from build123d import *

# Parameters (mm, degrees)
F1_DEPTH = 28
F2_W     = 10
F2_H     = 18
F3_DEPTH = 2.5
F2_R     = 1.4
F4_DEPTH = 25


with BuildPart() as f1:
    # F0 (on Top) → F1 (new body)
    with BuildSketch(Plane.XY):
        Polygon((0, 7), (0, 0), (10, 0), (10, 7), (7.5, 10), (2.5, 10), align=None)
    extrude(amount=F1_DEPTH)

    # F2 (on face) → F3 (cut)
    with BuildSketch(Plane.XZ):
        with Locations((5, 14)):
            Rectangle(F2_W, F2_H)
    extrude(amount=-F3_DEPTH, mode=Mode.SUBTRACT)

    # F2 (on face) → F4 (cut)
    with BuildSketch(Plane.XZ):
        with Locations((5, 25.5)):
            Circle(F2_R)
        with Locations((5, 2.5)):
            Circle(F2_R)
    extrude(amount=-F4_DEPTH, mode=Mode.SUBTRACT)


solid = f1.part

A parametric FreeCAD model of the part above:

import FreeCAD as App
import Part
import Sketcher
from FreeCAD import Vector

doc = App.newDocument("Part")
params = doc.addObject("Spreadsheet::Sheet", "Params")
for row, (alias, value) in enumerate([
    ("sketch1_width", "10 mm"),
    ("sketch1_width2", "5 mm"),
    ("sketch1_height", "7 mm"),
    ("pad1_length", "28 mm"),
    ("sketch2_width", "10 mm"),
    ("sketch2_height", "18 mm"),
    ("pocket1_length", "2.5 mm"),
    ("sketch3_diameter", "2.8 mm"),
    ("pocket2_length", "25 mm"),
], start=1):
    params.set(f"A{row}", alias)
    params.set(f"B{row}", "=" + value)
    params.setAlias(f"B{row}", alias)

body = doc.addObject("PartDesign::Body", "Body")

sketch1 = doc.addObject("Sketcher::SketchObject", "Sketch")
body.addObject(sketch1)
sketch1.AttachmentSupport = (doc.XY_Plane, [""])
sketch1.MapMode = "FlatFace"
sketch1.addGeometry([
    Part.LineSegment(Vector(0, 7, 0), Vector(0, 0, 0)),
    Part.LineSegment(Vector(0, 0, 0), Vector(10, 0, 0)),
    Part.LineSegment(Vector(10, 0, 0), Vector(10, 7, 0)),
    Part.LineSegment(Vector(10, 7, 0), Vector(7.5, 10, 0)),
    Part.LineSegment(Vector(7.5, 10, 0), Vector(2.5, 10, 0)),
    Part.LineSegment(Vector(2.5, 10, 0), Vector(0, 7, 0)),
], False)
sketch1.addConstraint([
    Sketcher.Constraint("Coincident", 0, 2, 1, 1),
    Sketcher.Constraint("Coincident", 1, 2, 2, 1),
    Sketcher.Constraint("Coincident", 2, 2, 3, 1),
    Sketcher.Constraint("Coincident", 3, 2, 4, 1),
    Sketcher.Constraint("Coincident", 4, 2, 5, 1),
    Sketcher.Constraint("Coincident", 5, 2, 0, 1),
    Sketcher.Constraint("Vertical", 0),
    Sketcher.Constraint("Horizontal", 1),
    Sketcher.Constraint("Vertical", 2),
    Sketcher.Constraint("Horizontal", 4),
    Sketcher.Constraint("Coincident", 0, 2, -1, 1),
    Sketcher.Constraint("Horizontal", 2, 2, 5, 2),
    Sketcher.Constraint("Equal", 3, 5),
    Sketcher.Constraint("DistanceX", 1, 1, 1, 2, 10.0),
    Sketcher.Constraint("DistanceX", 4, 2, 4, 1, 5.0),
    Sketcher.Constraint("DistanceY", 0, 2, 0, 1, 7.0),
    Sketcher.Constraint("DistanceY", -1, 1, 3, 2, 10.0),
])
sketch1.setExpression("Constraints[13]", "Params.sketch1_width")
sketch1.setExpression("Constraints[14]", "Params.sketch1_width2")
sketch1.setExpression("Constraints[15]", "Params.sketch1_height")
pad1 = doc.addObject("PartDesign::Pad", "Pad")
body.addObject(pad1)
pad1.Profile = sketch1
pad1.setExpression("Length", "Params.pad1_length")

sketch2 = doc.addObject("Sketcher::SketchObject", "Sketch001")
body.addObject(sketch2)
sketch2.AttachmentSupport = (doc.XZ_Plane, [""])
sketch2.MapMode = "FlatFace"
sketch2.addGeometry([
    Part.LineSegment(Vector(0, 23, 0), Vector(0, 5, 0)),
    Part.LineSegment(Vector(0, 5, 0), Vector(10, 5, 0)),
    Part.LineSegment(Vector(10, 5, 0), Vector(10, 23, 0)),
    Part.LineSegment(Vector(10, 23, 0), Vector(0, 23, 0)),
], False)
sketch2.addConstraint([
    Sketcher.Constraint("Coincident", 0, 2, 1, 1),
    Sketcher.Constraint("Coincident", 1, 2, 2, 1),
    Sketcher.Constraint("Coincident", 2, 2, 3, 1),
    Sketcher.Constraint("Coincident", 3, 2, 0, 1),
    Sketcher.Constraint("Vertical", 0),
    Sketcher.Constraint("Horizontal", 1),
    Sketcher.Constraint("Vertical", 2),
    Sketcher.Constraint("Horizontal", 3),
    Sketcher.Constraint("PointOnObject", 0, 2, -2),
    Sketcher.Constraint("DistanceX", 1, 1, 1, 2, 10.0),
    Sketcher.Constraint("DistanceY", 0, 2, 0, 1, 18.0),
    Sketcher.Constraint("DistanceY", -1, 1, 0, 2, 5.0),
])
sketch2.setExpression("Constraints[9]", "Params.sketch2_width")
sketch2.setExpression("Constraints[10]", "Params.sketch2_height")
pocket1 = doc.addObject("PartDesign::Pocket", "Pocket")
body.addObject(pocket1)
pocket1.Profile = sketch2
pocket1.setExpression("Length", "Params.pocket1_length")

sketch3 = doc.addObject("Sketcher::SketchObject", "Sketch002")
body.addObject(sketch3)
sketch3.AttachmentSupport = (doc.XZ_Plane, [""])
sketch3.MapMode = "FlatFace"
sketch3.addGeometry([
    Part.Circle(Vector(5, 25.5, 0), Vector(0, 0, 1), 1.4),
    Part.Circle(Vector(5, 2.5, 0), Vector(0, 0, 1), 1.4),
], False)
sketch3.addConstraint([
    Sketcher.Constraint("Equal", 0, 1),
    Sketcher.Constraint("Vertical", 0, 3, 1, 3),
    Sketcher.Constraint("Diameter", 0, 2.8),
    Sketcher.Constraint("DistanceX", -1, 1, 0, 3, 5.0),
    Sketcher.Constraint("DistanceY", 1, 3, 0, 3, 23.0),
    Sketcher.Constraint("DistanceY", -1, 1, 0, 3, 25.5),
])
sketch3.setExpression("Constraints[2]", "Params.sketch3_diameter")
pocket2 = doc.addObject("PartDesign::Pocket", "Pocket001")
body.addObject(pocket2)
pocket2.Profile = sketch3
pocket2.setExpression("Length", "Params.pocket2_length")

doc.recompute()
